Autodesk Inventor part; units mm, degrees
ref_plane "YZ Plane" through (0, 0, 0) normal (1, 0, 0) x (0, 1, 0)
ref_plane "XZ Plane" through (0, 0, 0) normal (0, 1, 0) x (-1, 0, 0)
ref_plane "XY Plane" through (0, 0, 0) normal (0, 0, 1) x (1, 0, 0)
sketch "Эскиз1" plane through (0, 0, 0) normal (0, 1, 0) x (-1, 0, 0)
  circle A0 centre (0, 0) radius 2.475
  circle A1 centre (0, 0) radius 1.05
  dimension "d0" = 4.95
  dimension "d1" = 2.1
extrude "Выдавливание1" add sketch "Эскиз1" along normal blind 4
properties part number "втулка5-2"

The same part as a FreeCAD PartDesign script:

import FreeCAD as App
import Part
import Sketcher
Q = App.Units.Quantity

doc = App.newDocument("Part")
body = doc.addObject("PartDesign::Body", "Body")

# Sketch on XZ plane
sketch1 = body.newObject("Sketcher::SketchObject", "Sketch")
sketch1.AttachmentSupport = (doc.getObject("XZ_Plane"), [""])
sketch1.MapMode = "FlatFace"
sketch1.addGeometry(Part.Circle(App.Vector(0, 0, 0), App.Vector(0, 0, 1), 2.475), False)
sketch1.addGeometry(Part.Circle(App.Vector(0, 0, 0), App.Vector(0, 0, 1), 1.05), False)
sketch1.addConstraint(Sketcher.Constraint("Coincident", 0, 3, -1, 1))
sketch1.addConstraint(Sketcher.Constraint("Coincident", 1, 3, -1, 1))
sketch1.addConstraint(Sketcher.Constraint("Diameter", 1, Q("2.1 mm")))
sketch1.addConstraint(Sketcher.Constraint("Diameter", 0, Q("4.95 mm")))
pad1 = body.newObject("PartDesign::Pad", "Pad")
pad1.Profile = sketch1
pad1.Length = 4
pad1.Reversed = True

doc.recompute()
